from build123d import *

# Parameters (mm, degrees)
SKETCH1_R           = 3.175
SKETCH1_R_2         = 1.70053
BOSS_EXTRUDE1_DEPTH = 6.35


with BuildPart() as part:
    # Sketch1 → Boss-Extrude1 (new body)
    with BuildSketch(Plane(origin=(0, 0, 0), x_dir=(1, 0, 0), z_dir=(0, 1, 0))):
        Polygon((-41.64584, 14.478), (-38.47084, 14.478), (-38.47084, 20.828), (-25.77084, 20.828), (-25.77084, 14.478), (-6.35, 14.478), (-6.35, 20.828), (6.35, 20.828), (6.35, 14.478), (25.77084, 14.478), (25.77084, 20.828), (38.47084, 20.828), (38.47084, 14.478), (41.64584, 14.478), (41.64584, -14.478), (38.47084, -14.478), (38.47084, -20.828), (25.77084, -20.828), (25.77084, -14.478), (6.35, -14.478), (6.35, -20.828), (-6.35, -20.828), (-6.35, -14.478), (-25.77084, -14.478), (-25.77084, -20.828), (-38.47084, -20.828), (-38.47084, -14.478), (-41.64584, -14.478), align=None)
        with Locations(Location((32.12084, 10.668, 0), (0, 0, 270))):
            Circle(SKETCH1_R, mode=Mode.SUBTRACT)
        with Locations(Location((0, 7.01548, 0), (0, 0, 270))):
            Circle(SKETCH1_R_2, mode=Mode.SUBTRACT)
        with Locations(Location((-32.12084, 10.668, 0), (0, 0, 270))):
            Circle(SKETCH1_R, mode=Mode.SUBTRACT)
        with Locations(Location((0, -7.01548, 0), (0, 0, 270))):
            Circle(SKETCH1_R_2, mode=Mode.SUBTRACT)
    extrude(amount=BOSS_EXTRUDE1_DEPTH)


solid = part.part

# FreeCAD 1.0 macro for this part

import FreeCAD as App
import Part
import Sketcher

V = App.Vector
Q = App.Units.Quantity


def add_polygon(sketch, points):
    """Adds a closed chain of lines whose ends are joined by coincident constraints."""
    first, n = sketch.GeometryCount, len(points)
    for a, b in zip(points, points[1:] + points[:1]):
        sketch.addGeometry(Part.LineSegment(App.Vector(*a, 0), App.Vector(*b, 0)), False)
    for i in range(n):
        sketch.addConstraint(Sketcher.Constraint("Coincident", first + i, 2, first + (i + 1) % n, 1))

doc = App.newDocument("Part")
body = doc.addObject("PartDesign::Body", "Body")

# Sketch on XZ plane
sketch1 = doc.addObject("Sketcher::SketchObject", "Sketch")
body.addObject(sketch1)
sketch1.AttachmentSupport = (doc.XZ_Plane, [""])
sketch1.MapMode = "FlatFace"
add_polygon(sketch1, [(-38.47084, -14.478), (-41.64584, -14.478), (-41.64584, 14.478), (-38.47084, 14.478), (-38.47084, 20.828), (-25.77084, 20.828), (-25.77084, 14.478), (-6.35, 14.478), (-6.35, 20.828), (6.35, 20.828), (6.35, 14.478), (25.77084, 14.478), (25.77084, 20.828), (38.47084, 20.828), (38.47084, 14.478), (41.64584, 14.478), (41.64584, -14.478), (38.47084, -14.478), (38.47084, -20.828), (25.77084, -20.828), (25.77084, -14.478), (6.35, -14.478), (6.35, -20.828), (-6.35, -20.828), (-6.35, -14.478), (-25.77084, -14.478), (-25.77084, -20.828), (-38.47084, -20.828)])  # lines 0-27
sketch1.addGeometry(Part.Circle(V(0, 7.01548, 0), V(0, 0, 1), 1.70053), False)  # 28
sketch1.addGeometry(Part.Circle(V(32.12084, -10.668, 0), V(0, 0, 1), 3.175), False)  # 29
sketch1.addGeometry(Part.Circle(V(0, -7.01548, 0), V(0, 0, 1), 1.70053), False)  # 30
sketch1.addGeometry(Part.Circle(V(-32.12084, -10.668, 0), V(0, 0, 1), 3.175), False)  # 31
sketch1.addConstraint([
    Sketcher.Constraint("Horizontal", 0),
    Sketcher.Constraint("Vertical", 1),
    Sketcher.Constraint("Horizontal", 2),
    Sketcher.Constraint("Vertical", 3),
    Sketcher.Constraint("Horizontal", 4),
    Sketcher.Constraint("Vertical", 5),
    Sketcher.Constraint("Horizontal", 6),
    Sketcher.Constraint("Vertical", 7),
    Sketcher.Constraint("Horizontal", 8),
    Sketcher.Constraint("Vertical", 9),
    Sketcher.Constraint("Horizontal", 10),
    Sketcher.Constraint("Vertical", 11),
    Sketcher.Constraint("Horizontal", 12),
    Sketcher.Constraint("Vertical", 13),
    Sketcher.Constraint("Horizontal", 14),
    Sketcher.Constraint("Vertical", 15),
    Sketcher.Constraint("Horizontal", 16),
    Sketcher.Constraint("Vertical", 17),
    Sketcher.Constraint("Horizontal", 18),
    Sketcher.Constraint("Vertical", 19),
    Sketcher.Constraint("Horizontal", 20),
    Sketcher.Constraint("Vertical", 21),
    Sketcher.Constraint("Horizontal", 22),
    Sketcher.Constraint("Vertical", 23),
    Sketcher.Constraint("Horizontal", 24),
    Sketcher.Constraint("Vertical", 25),
    Sketcher.Constraint("Horizontal", 26),
    Sketcher.Constraint("Vertical", 27),
    Sketcher.Constraint("Equal", 28, 30),
    Sketcher.Constraint("Equal", 29, 31),
    Sketcher.Constraint("Symmetric", 28, 3, 30, 3, -1, 1),
    Sketcher.Constraint("Symmetric", 0, 2, 14, 2, -1, 1),
    Sketcher.Constraint("Symmetric", 2, 2, 16, 2, -1, 1),
    Sketcher.Constraint("Symmetric", 4, 2, 18, 2, -1, 1),
    Sketcher.Constraint("Symmetric", 6, 2, 20, 2, -1, 1),
    Sketcher.Constraint("Symmetric", 8, 2, 22, 2, -1, 1),
    Sketcher.Constraint("Symmetric", 10, 2, 24, 2, -1, 1),
    Sketcher.Constraint("Symmetric", 12, 2, 26, 2, -1, 1),
    Sketcher.Constraint("Symmetric", 29, 3, 31, 3, -2),
    Sketcher.Constraint("Symmetric", 6, 2, 9, 2, -2),
    Sketcher.Constraint("Symmetric", 4, 2, 11, 2, -2),
    Sketcher.Constraint("Symmetric", 2, 2, 13, 2, -2),
    Sketcher.Constraint("PointOnObject", 28, 3, -2),
    Sketcher.Constraint("Horizontal", 2, 2, 5, 2),
    Sketcher.Constraint("Horizontal", 4, 2, 7, 2),
    Sketcher.Constraint("Equal", 4, 8),
    Sketcher.Constraint("Diameter", 29, Q("0.25 in")),
    Sketcher.Constraint("DistanceX", 4, 1, 4, 2, Q("0.5 in")),
    Sketcher.Constraint("Diameter", 28, Q("0.1339 in")),
    Sketcher.Constraint("DistanceY", 1, 1, 1, 2, Q("1.14 in")),
    Sketcher.Constraint("DistanceY", 3, 1, 3, 2, Q("0.25 in")),
    Sketcher.Constraint("DistanceY", 17, 2, 29, 3, Q("0.4 in")),
    Sketcher.Constraint("DistanceX", 0, 2, 0, 1, Q("0.125 in")),
    Sketcher.Constraint("DistanceX", 2, 2, 31, 3, Q("0.25 in")),
    Sketcher.Constraint("DistanceX", 6, 1, 6, 2, Q("0.7646 in")),
    Sketcher.Constraint("DistanceY", -1, 1, 28, 3, Q("0.2762 in")),
])
pad1 = doc.addObject("PartDesign::Pad", "Pad")
body.addObject(pad1)
pad1.Profile = sketch1
pad1.Length = Q("0.25 in")
pad1.Reversed = True

doc.recompute()
